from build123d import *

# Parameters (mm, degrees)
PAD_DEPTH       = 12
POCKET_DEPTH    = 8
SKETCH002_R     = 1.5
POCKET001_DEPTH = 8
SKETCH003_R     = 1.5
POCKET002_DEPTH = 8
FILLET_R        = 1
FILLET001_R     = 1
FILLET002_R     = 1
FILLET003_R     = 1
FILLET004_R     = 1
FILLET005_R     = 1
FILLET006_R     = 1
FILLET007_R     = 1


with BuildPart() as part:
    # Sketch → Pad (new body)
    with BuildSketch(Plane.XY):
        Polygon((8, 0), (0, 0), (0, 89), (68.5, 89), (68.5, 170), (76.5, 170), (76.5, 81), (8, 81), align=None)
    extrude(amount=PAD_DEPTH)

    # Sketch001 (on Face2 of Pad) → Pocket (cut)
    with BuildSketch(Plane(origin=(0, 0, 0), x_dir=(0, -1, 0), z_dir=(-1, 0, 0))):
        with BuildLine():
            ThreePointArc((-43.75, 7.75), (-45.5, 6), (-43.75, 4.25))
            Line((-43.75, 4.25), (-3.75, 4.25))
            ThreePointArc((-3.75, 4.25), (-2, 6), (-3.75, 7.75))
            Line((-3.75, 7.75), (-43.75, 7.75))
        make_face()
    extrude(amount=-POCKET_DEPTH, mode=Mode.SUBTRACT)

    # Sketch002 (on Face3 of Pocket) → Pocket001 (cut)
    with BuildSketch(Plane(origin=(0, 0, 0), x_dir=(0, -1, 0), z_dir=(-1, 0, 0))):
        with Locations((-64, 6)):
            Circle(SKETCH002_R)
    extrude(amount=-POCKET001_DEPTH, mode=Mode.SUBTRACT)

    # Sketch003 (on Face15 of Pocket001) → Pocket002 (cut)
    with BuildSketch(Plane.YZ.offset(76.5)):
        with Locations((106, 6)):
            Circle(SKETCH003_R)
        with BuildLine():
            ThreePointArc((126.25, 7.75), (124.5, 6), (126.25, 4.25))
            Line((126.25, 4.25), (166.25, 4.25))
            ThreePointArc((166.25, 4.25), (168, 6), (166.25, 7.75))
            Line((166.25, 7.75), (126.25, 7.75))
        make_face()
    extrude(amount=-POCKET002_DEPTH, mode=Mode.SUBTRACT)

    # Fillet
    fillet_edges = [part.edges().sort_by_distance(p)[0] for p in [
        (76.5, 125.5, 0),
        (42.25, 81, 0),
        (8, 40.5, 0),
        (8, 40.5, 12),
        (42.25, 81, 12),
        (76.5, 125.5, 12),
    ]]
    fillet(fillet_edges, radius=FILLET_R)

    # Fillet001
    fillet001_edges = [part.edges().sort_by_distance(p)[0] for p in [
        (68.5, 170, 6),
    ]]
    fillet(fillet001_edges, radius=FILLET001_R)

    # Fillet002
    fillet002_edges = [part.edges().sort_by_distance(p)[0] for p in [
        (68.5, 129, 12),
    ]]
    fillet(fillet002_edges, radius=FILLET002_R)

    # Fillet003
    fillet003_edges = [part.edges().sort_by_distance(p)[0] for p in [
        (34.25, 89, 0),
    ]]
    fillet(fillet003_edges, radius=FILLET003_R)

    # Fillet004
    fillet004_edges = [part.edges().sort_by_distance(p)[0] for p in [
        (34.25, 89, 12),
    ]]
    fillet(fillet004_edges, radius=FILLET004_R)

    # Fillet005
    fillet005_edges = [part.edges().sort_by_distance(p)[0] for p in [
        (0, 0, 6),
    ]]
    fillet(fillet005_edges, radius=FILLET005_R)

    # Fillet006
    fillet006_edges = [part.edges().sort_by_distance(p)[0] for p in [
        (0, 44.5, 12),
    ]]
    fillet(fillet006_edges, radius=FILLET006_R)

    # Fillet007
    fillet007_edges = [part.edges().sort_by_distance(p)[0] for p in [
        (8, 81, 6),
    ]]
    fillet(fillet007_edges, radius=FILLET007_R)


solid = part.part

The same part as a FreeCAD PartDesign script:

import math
import FreeCAD as App
import Part
import Sketcher
Q = App.Units.Quantity


def edges_at(feature, points):
    """Names of the edges that pass closest to the given points."""
    edges = feature.Shape.Edges
    near = lambda p: min(range(len(edges)), key=lambda i: edges[i].distToShape(Part.Vertex(*p))[0])
    return sorted({f"Edge{near(p) + 1}" for p in points})

doc = App.newDocument("Part")
body = doc.addObject("PartDesign::Body", "Body")

sketch1 = body.newObject("Sketcher::SketchObject", "Sketch")
sketch1.AttachmentSupport = (doc.getObject("XY_Plane"), [""])
sketch1.MapMode = "FlatFace"
sketch1.addGeometry([
    Part.LineSegment(App.Vector(0, 0, 0), App.Vector(8, 0, 0)),
    Part.LineSegment(App.Vector(8, 0, 0), App.Vector(8, 81, 0)),
    Part.LineSegment(App.Vector(8, 81, 0), App.Vector(76, 81, 0)),
    Part.LineSegment(App.Vector(76, 81, 0), App.Vector(76, 170, 0)),
    Part.LineSegment(App.Vector(76, 170, 0), App.Vector(68, 170, 0)),
    Part.LineSegment(App.Vector(68, 170, 0), App.Vector(68, 89, 0)),
    Part.LineSegment(App.Vector(68, 89, 0), App.Vector(0, 89, 0)),
    Part.LineSegment(App.Vector(0, 89, 0), App.Vector(0, 0, 0)),
], False)
sketch1.addConstraint([
    Sketcher.Constraint("Coincident", 0, 2, 1, 1),
    Sketcher.Constraint("Coincident", 1, 2, 2, 1),
    Sketcher.Constraint("Coincident", 2, 2, 3, 1),
    Sketcher.Constraint("Coincident", 3, 2, 4, 1),
    Sketcher.Constraint("Coincident", 4, 2, 5, 1),
    Sketcher.Constraint("Coincident", 5, 2, 6, 1),
    Sketcher.Constraint("Coincident", 6, 2, 7, 1),
    Sketcher.Constraint("Coincident", 7, 2, 0, 1),
    Sketcher.Constraint("Horizontal", 0),
    Sketcher.Constraint("Vertical", 1),
    Sketcher.Constraint("Horizontal", 2),
    Sketcher.Constraint("Vertical", 3),
    Sketcher.Constraint("Horizontal", 4),
    Sketcher.Constraint("Vertical", 5),
    Sketcher.Constraint("Horizontal", 6),
    Sketcher.Constraint("Vertical", 7),
    Sketcher.Constraint("Coincident", 7, 2, -1, 1),
    Sketcher.Constraint("Equal", 0, 4),
    Sketcher.Constraint("Equal", 1, 5),
    Sketcher.Constraint("DistanceX", 0, 1, 0, 2, Q("8 mm")),
    Sketcher.Constraint("DistanceY", 1, 1, 1, 2, Q("81 mm")),
    Sketcher.Constraint("DistanceY", 3, 1, 3, 2, Q("89 mm")),
    Sketcher.Constraint("DistanceX", 2, 1, 2, 2, Q("68.5 mm")),
])
pad1 = body.newObject("PartDesign::Pad", "Pad")
pad1.Profile = sketch1
pad1.Length = 12

sketch2 = body.newObject("Sketcher::SketchObject", "Sketch001")
sketch2.AttachmentSupport = (doc.getObject("YZ_Plane"), [""])
sketch2.MapMode = "FlatFace"
sketch2.addGeometry([
    Part.ArcOfCircle(Part.Circle(App.Vector(43.8, 6, 0), App.Vector(0, 0, 1), 1.8), math.radians(-90), math.radians(90)),
    Part.LineSegment(App.Vector(43.8, 4.2, 0), App.Vector(3.8, 4.2, 0)),
    Part.ArcOfCircle(Part.Circle(App.Vector(3.8, 6, 0), App.Vector(0, 0, 1), 1.8), math.radians(90), math.radians(270)),
    Part.LineSegment(App.Vector(3.8, 7.8, 0), App.Vector(43.8, 7.8, 0)),
], False)
sketch2.addConstraint([
    Sketcher.Constraint("Tangent", 0, 1, 1, 1),
    Sketcher.Constraint("Tangent", 1, 2, 2, 2),
    Sketcher.Constraint("Tangent", 2, 1, 3, 1),
    Sketcher.Constraint("Tangent", 3, 2, 0, 2),
    Sketcher.Constraint("Horizontal", 1),
    Sketcher.Constraint("Horizontal", 3),
    Sketcher.Constraint("DistanceX", 1, 2, 1, 1, Q("40 mm")),
    Sketcher.Constraint("Radius", 0, Q("1.75 mm")),
    Sketcher.Constraint("DistanceY", -1, 1, 0, 3, Q("6 mm")),
    Sketcher.Constraint("DistanceX", -1, 1, 0, 3, Q("43.75 mm")),
])
pocket1 = body.newObject("PartDesign::Pocket", "Pocket")
pocket1.Profile = sketch2
pocket1.Length = 8
pocket1.Reversed = True

sketch3 = body.newObject("Sketcher::SketchObject", "Sketch002")
sketch3.AttachmentSupport = (doc.getObject("YZ_Plane"), [""])
sketch3.MapMode = "FlatFace"
sketch3.addGeometry(Part.Circle(App.Vector(64, 6, 0), App.Vector(0, 0, 1), 1.5), False)
sketch3.addConstraint([
    Sketcher.Constraint("Diameter", 0, Q("3 mm")),
    Sketcher.Constraint("DistanceX", -1, 1, 0, 3, Q("64 mm")),
    Sketcher.Constraint("DistanceY", -1, 1, 0, 3, Q("6 mm")),
])
pocket2 = body.newObject("PartDesign::Pocket", "Pocket001")
pocket2.Profile = sketch3
pocket2.Length = 8
pocket2.Reversed = True

sketch4 = body.newObject("Sketcher::SketchObject", "Sketch003")
sketch4.AttachmentSupport = (doc.getObject("YZ_Plane"), [""])
sketch4.MapMode = "FlatFace"
sketch4.AttachmentOffset = App.Placement(App.Vector(0, 0, 76.5), App.Rotation())
sketch4.addGeometry([
    Part.Circle(App.Vector(106, 6, 0), App.Vector(0, 0, 1), 1.5),
    Part.ArcOfCircle(Part.Circle(App.Vector(126.2, 6, 0), App.Vector(0, 0, 1), 1.8), math.radians(90), math.radians(270)),
    Part.LineSegment(App.Vector(126.2, 4.2, 0), App.Vector(166.2, 4.2, 0)),
    Part.ArcOfCircle(Part.Circle(App.Vector(166.2, 6, 0), App.Vector(0, 0, 1), 1.8), math.radians(-90), math.radians(90)),
    Part.LineSegment(App.Vector(166.2, 7.8, 0), App.Vector(126.2, 7.8, 0)),
], False)
sketch4.addConstraint([
    Sketcher.Constraint("Tangent", 1, 2, 2, 1),
    Sketcher.Constraint("Tangent", 2, 2, 3, 1),
    Sketcher.Constraint("Tangent", 3, 2, 4, 1),
    Sketcher.Constraint("Tangent", 4, 2, 1, 1),
    Sketcher.Constraint("Horizontal", 2),
    Sketcher.Constraint("Horizontal", 4),
    Sketcher.Constraint("Horizontal", 0, 3, 1, 3),
    Sketcher.Constraint("Diameter", 0, Q("3 mm")),
    Sketcher.Constraint("DistanceX", 2, 1, 2, 2, Q("40 mm")),
    Sketcher.Constraint("Radius", 1, Q("1.75 mm")),
    Sketcher.Constraint("DistanceX", -1, 1, 0, 3, Q("106 mm")),
    Sketcher.Constraint("DistanceY", -1, 1, 0, 3, Q("6 mm")),
    Sketcher.Constraint("DistanceX", -1, 1, 1, 3, Q("126.25 mm")),
])
pocket3 = body.newObject("PartDesign::Pocket", "Pocket002")
pocket3.Profile = sketch4
pocket3.Length = 8
doc.recompute()

fillet = body.newObject("PartDesign::Fillet", "Fillet")
fillet.Base = (pocket3, edges_at(pocket3, [
    (76.5, 125.5, 0),
    (42.25, 81, 0),
    (8, 40.5, 0),
    (8, 40.5, 12),
    (42.25, 81, 12),
    (76.5, 125.5, 12),
]))
fillet.Radius = 1
doc.recompute()

fillet2 = body.newObject("PartDesign::Fillet", "Fillet001")
fillet2.Base = (fillet, edges_at(fillet, [(68.5, 170, 6)]))
fillet2.Radius = 1
doc.recompute()

fillet3 = body.newObject("PartDesign::Fillet", "Fillet002")
fillet3.Base = (fillet2, edges_at(fillet2, [(68.5, 129, 12)]))
fillet3.Radius = 1
doc.recompute()

fillet4 = body.newObject("PartDesign::Fillet", "Fillet003")
fillet4.Base = (fillet3, edges_at(fillet3, [(34.75, 89, 0)]))
fillet4.Radius = 1
doc.recompute()

fillet5 = body.newObject("PartDesign::Fillet", "Fillet004")
fillet5.Base = (fillet4, edges_at(fillet4, [(34.75, 89, 12)]))
fillet5.Radius = 1
doc.recompute()

fillet6 = body.newObject("PartDesign::Fillet", "Fillet005")
fillet6.Base = (fillet5, edges_at(fillet5, [(0, 0, 6)]))
fillet6.Radius = 1
doc.recompute()

fillet7 = body.newObject("PartDesign::Fillet", "Fillet006")
fillet7.Base = (fillet6, edges_at(fillet6, [(0, 44.5, 12)]))
fillet7.Radius = 1
doc.recompute()

fillet8 = body.newObject("PartDesign::Fillet", "Fillet007")
fillet8.Base = (fillet7, edges_at(fillet7, [(8, 81, 6)]))
fillet8.Radius = 1

doc.recompute()
